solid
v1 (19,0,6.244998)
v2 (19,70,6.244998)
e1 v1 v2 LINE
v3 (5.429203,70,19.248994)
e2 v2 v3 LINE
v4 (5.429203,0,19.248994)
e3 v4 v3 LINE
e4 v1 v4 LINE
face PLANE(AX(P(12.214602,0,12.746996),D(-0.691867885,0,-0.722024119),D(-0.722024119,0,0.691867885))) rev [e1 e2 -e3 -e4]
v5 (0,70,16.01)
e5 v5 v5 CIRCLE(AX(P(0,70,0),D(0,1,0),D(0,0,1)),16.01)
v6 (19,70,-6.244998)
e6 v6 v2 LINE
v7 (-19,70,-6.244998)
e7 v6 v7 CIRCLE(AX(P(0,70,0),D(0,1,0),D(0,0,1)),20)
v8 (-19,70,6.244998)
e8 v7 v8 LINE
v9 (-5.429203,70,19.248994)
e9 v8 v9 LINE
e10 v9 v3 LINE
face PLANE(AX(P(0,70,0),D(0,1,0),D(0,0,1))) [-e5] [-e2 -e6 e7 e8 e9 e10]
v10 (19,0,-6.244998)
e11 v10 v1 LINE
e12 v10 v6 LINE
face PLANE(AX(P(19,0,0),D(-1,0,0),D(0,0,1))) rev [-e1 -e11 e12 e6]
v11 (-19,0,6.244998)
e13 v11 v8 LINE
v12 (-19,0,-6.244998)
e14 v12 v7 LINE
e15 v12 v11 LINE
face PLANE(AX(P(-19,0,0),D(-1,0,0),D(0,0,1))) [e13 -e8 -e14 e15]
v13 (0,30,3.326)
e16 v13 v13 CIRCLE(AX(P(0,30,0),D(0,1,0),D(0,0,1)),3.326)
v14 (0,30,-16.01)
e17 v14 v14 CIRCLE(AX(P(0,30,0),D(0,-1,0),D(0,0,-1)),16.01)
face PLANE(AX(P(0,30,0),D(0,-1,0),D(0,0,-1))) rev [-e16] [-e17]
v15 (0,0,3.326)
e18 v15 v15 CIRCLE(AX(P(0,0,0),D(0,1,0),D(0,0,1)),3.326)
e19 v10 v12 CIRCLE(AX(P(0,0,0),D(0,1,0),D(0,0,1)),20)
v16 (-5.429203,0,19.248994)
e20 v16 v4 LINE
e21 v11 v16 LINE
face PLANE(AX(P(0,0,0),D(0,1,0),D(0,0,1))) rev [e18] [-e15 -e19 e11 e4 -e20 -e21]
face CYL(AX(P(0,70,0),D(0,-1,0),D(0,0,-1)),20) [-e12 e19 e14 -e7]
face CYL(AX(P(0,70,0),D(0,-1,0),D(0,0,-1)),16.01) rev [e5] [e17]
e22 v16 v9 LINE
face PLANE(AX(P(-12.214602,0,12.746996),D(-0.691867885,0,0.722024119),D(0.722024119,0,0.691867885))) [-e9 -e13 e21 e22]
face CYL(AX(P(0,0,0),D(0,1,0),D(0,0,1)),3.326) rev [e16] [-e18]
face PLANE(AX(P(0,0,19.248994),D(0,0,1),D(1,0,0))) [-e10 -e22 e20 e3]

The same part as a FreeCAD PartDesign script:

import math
import FreeCAD as App
import Part
import Sketcher

doc = App.newDocument("Part")
body = doc.addObject("PartDesign::Body", "Body")

# Sketch on XZ plane
sketch1 = body.newObject("Sketcher::SketchObject", "Sketch")
sketch1.AttachmentSupport = (doc.getObject("XZ_Plane"), [""])
sketch1.MapMode = "FlatFace"
sketch1.addGeometry([
    Part.Circle(App.Vector(0, 0, 0), App.Vector(0, 0, 1), 20),
    Part.Circle(App.Vector(0, 0, 0), App.Vector(0, 0, 1), 16),
], False)
sketch1.addConstraint([
    Sketcher.Constraint("Coincident", 0, 3, -1, 1),
    Sketcher.Constraint("Coincident", 1, 3, -1, 1),
    Sketcher.Constraint("Diameter", 0, 40.0),
    Sketcher.Constraint("Diameter", 1, 32.02),
])
pad1 = body.newObject("PartDesign::Pad", "Pad")
pad1.Profile = sketch1
pad1.Length = 70
pad1.Reversed = True

# Sketch on XZ plane
sketch2 = body.newObject("Sketcher::SketchObject", "Sketch001")
sketch2.AttachmentSupport = (doc.getObject("XZ_Plane"), [""])
sketch2.MapMode = "FlatFace"
sketch2.AttachmentOffset = App.Placement(App.Vector(0, 0, -70), App.Rotation())
sketch2.addGeometry([
    Part.LineSegment(App.Vector(-19, 6, 0), App.Vector(-19, -6, 0)),  # 0
    Part.ArcOfCircle(Part.Circle(App.Vector(0, 0, 0), App.Vector(0, 0, 1), 20), math.radians(162), math.radians(198)),  # 1
    Part.LineSegment(App.Vector(-5, 19, 0), App.Vector(-19, 6, 0)),  # 2
    Part.ArcOfCircle(Part.Circle(App.Vector(0, 0, 0), App.Vector(0, 0, 1), 20), math.radians(106), math.radians(162)),  # 3
    Part.ArcOfCircle(Part.Circle(App.Vector(0, 0, 0), App.Vector(0, 0, 1), 20), math.radians(18), math.radians(74)),  # 4
    Part.LineSegment(App.Vector(19, 6, 0), App.Vector(5, 19, 0)),  # 5
    Part.ArcOfCircle(Part.Circle(App.Vector(0, 0, 0), App.Vector(0, 0, 1), 20), math.radians(90), math.radians(105.75)),  # 6
    Part.ArcOfCircle(Part.Circle(App.Vector(0, 0, 0), App.Vector(0, 0, 1), 20), math.radians(74.25), math.radians(90)),  # 7
    Part.LineSegment(App.Vector(5, 19, 0), App.Vector(-5, 19, 0)),  # 8
    Part.ArcOfCircle(Part.Circle(App.Vector(0, 0, 0), App.Vector(0, 0, 1), 20), math.radians(-18.19), math.radians(0)),  # 9
    Part.LineSegment(App.Vector(19, -6, 0), App.Vector(19, 6, 0)),  # 10
    Part.ArcOfCircle(Part.Circle(App.Vector(0, 0, 0), App.Vector(0, 0, 1), 20), math.radians(0), math.radians(18.19)),  # 11
], False)
sketch2.addConstraint([
    Sketcher.Constraint("Coincident", 0, 1, 1, 1),
    Sketcher.Constraint("Coincident", 1, 2, 0, 2),
    Sketcher.Constraint("Coincident", 2, 1, 3, 1),
    Sketcher.Constraint("Coincident", 3, 2, 2, 2),
    Sketcher.Constraint("Coincident", 4, 1, 5, 1),
    Sketcher.Constraint("Coincident", 5, 2, 4, 2),
    Sketcher.Constraint("Tangent", 6, 1, 7, 2),
    Sketcher.Constraint("Coincident", 7, 1, 8, 1),
    Sketcher.Constraint("Coincident", 8, 2, 6, 2),
    Sketcher.Constraint("Coincident", 9, 1, 10, 1),
    Sketcher.Constraint("Coincident", 10, 2, 11, 2),
    Sketcher.Constraint("Tangent", 11, 1, 9, 2),
    Sketcher.Constraint("Vertical", 0),
    Sketcher.Constraint("Horizontal", 8),
    Sketcher.Constraint("Vertical", 10),
    Sketcher.Constraint("Coincident", 1, 3, -1, 1),
    Sketcher.Constraint("Coincident", 3, 3, -1, 1),
    Sketcher.Constraint("Coincident", 4, 3, -1, 1),
    Sketcher.Constraint("Coincident", 6, 3, -1, 1),
    Sketcher.Constraint("Coincident", 9, 3, -1, 1),
    Sketcher.Constraint("Coincident", 3, 2, 0, 1),
    Sketcher.Constraint("Coincident", 7, 1, 5, 2),
    Sketcher.Constraint("Coincident", 8, 2, 2, 1),
    Sketcher.Constraint("Coincident", 10, 2, 4, 1),
    Sketcher.Constraint("Equal", 3, 4),
    Sketcher.Constraint("Equal", 7, 9),
    Sketcher.Constraint("PointOnObject", 6, 1, -2),
    Sketcher.Constraint("PointOnObject", 11, 1, -1),
    Sketcher.Constraint("Horizontal", 3, 2, 4, 1),
    Sketcher.Constraint("Radius", 1, 20.0),
    Sketcher.Constraint("DistanceX", 0, 1, -1, 1, 19.0),
    Sketcher.Constraint("Distance", 2, 18.795489),
])
pocket1 = body.newObject("PartDesign::Pocket", "Pocket")
pocket1.Profile = sketch2
pocket1.Type = "ThroughAll"
pocket1.Midplane = True

# Sketch on XZ plane
sketch3 = body.newObject("Sketcher::SketchObject", "Sketch002")
sketch3.AttachmentSupport = (doc.getObject("XZ_Plane"), [""])
sketch3.MapMode = "FlatFace"
sketch3.addGeometry(Part.Circle(App.Vector(0, 0, 0), App.Vector(0, 0, 1), 16), False)
sketch3.addConstraint([
    Sketcher.Constraint("Coincident", 0, 3, -1, 1),
    Sketcher.Constraint("Diameter", 0, 32.02),
])
pad2 = body.newObject("PartDesign::Pad", "Pad001")
pad2.Profile = sketch3
pad2.Length = 30
pad2.Reversed = True

# Sketch on XZ plane
sketch4 = body.newObject("Sketcher::SketchObject", "Sketch003")
sketch4.AttachmentSupport = (doc.getObject("XZ_Plane"), [""])
sketch4.MapMode = "FlatFace"
sketch4.AttachmentOffset = App.Placement(App.Vector(0, 0, -30), App.Rotation())
sketch4.addGeometry(Part.Circle(App.Vector(0, 0, 0), App.Vector(0, 0, 1), 3.3), False)
sketch4.addConstraint([
    Sketcher.Constraint("Coincident", 0, 3, -1, 1),
    Sketcher.Constraint("Diameter", 0, 6.652),
])
pocket2 = body.newObject("PartDesign::Pocket", "Pocket001")
pocket2.Profile = sketch4
pocket2.Type = "ThroughAll"
pocket2.Midplane = True

doc.recompute()
